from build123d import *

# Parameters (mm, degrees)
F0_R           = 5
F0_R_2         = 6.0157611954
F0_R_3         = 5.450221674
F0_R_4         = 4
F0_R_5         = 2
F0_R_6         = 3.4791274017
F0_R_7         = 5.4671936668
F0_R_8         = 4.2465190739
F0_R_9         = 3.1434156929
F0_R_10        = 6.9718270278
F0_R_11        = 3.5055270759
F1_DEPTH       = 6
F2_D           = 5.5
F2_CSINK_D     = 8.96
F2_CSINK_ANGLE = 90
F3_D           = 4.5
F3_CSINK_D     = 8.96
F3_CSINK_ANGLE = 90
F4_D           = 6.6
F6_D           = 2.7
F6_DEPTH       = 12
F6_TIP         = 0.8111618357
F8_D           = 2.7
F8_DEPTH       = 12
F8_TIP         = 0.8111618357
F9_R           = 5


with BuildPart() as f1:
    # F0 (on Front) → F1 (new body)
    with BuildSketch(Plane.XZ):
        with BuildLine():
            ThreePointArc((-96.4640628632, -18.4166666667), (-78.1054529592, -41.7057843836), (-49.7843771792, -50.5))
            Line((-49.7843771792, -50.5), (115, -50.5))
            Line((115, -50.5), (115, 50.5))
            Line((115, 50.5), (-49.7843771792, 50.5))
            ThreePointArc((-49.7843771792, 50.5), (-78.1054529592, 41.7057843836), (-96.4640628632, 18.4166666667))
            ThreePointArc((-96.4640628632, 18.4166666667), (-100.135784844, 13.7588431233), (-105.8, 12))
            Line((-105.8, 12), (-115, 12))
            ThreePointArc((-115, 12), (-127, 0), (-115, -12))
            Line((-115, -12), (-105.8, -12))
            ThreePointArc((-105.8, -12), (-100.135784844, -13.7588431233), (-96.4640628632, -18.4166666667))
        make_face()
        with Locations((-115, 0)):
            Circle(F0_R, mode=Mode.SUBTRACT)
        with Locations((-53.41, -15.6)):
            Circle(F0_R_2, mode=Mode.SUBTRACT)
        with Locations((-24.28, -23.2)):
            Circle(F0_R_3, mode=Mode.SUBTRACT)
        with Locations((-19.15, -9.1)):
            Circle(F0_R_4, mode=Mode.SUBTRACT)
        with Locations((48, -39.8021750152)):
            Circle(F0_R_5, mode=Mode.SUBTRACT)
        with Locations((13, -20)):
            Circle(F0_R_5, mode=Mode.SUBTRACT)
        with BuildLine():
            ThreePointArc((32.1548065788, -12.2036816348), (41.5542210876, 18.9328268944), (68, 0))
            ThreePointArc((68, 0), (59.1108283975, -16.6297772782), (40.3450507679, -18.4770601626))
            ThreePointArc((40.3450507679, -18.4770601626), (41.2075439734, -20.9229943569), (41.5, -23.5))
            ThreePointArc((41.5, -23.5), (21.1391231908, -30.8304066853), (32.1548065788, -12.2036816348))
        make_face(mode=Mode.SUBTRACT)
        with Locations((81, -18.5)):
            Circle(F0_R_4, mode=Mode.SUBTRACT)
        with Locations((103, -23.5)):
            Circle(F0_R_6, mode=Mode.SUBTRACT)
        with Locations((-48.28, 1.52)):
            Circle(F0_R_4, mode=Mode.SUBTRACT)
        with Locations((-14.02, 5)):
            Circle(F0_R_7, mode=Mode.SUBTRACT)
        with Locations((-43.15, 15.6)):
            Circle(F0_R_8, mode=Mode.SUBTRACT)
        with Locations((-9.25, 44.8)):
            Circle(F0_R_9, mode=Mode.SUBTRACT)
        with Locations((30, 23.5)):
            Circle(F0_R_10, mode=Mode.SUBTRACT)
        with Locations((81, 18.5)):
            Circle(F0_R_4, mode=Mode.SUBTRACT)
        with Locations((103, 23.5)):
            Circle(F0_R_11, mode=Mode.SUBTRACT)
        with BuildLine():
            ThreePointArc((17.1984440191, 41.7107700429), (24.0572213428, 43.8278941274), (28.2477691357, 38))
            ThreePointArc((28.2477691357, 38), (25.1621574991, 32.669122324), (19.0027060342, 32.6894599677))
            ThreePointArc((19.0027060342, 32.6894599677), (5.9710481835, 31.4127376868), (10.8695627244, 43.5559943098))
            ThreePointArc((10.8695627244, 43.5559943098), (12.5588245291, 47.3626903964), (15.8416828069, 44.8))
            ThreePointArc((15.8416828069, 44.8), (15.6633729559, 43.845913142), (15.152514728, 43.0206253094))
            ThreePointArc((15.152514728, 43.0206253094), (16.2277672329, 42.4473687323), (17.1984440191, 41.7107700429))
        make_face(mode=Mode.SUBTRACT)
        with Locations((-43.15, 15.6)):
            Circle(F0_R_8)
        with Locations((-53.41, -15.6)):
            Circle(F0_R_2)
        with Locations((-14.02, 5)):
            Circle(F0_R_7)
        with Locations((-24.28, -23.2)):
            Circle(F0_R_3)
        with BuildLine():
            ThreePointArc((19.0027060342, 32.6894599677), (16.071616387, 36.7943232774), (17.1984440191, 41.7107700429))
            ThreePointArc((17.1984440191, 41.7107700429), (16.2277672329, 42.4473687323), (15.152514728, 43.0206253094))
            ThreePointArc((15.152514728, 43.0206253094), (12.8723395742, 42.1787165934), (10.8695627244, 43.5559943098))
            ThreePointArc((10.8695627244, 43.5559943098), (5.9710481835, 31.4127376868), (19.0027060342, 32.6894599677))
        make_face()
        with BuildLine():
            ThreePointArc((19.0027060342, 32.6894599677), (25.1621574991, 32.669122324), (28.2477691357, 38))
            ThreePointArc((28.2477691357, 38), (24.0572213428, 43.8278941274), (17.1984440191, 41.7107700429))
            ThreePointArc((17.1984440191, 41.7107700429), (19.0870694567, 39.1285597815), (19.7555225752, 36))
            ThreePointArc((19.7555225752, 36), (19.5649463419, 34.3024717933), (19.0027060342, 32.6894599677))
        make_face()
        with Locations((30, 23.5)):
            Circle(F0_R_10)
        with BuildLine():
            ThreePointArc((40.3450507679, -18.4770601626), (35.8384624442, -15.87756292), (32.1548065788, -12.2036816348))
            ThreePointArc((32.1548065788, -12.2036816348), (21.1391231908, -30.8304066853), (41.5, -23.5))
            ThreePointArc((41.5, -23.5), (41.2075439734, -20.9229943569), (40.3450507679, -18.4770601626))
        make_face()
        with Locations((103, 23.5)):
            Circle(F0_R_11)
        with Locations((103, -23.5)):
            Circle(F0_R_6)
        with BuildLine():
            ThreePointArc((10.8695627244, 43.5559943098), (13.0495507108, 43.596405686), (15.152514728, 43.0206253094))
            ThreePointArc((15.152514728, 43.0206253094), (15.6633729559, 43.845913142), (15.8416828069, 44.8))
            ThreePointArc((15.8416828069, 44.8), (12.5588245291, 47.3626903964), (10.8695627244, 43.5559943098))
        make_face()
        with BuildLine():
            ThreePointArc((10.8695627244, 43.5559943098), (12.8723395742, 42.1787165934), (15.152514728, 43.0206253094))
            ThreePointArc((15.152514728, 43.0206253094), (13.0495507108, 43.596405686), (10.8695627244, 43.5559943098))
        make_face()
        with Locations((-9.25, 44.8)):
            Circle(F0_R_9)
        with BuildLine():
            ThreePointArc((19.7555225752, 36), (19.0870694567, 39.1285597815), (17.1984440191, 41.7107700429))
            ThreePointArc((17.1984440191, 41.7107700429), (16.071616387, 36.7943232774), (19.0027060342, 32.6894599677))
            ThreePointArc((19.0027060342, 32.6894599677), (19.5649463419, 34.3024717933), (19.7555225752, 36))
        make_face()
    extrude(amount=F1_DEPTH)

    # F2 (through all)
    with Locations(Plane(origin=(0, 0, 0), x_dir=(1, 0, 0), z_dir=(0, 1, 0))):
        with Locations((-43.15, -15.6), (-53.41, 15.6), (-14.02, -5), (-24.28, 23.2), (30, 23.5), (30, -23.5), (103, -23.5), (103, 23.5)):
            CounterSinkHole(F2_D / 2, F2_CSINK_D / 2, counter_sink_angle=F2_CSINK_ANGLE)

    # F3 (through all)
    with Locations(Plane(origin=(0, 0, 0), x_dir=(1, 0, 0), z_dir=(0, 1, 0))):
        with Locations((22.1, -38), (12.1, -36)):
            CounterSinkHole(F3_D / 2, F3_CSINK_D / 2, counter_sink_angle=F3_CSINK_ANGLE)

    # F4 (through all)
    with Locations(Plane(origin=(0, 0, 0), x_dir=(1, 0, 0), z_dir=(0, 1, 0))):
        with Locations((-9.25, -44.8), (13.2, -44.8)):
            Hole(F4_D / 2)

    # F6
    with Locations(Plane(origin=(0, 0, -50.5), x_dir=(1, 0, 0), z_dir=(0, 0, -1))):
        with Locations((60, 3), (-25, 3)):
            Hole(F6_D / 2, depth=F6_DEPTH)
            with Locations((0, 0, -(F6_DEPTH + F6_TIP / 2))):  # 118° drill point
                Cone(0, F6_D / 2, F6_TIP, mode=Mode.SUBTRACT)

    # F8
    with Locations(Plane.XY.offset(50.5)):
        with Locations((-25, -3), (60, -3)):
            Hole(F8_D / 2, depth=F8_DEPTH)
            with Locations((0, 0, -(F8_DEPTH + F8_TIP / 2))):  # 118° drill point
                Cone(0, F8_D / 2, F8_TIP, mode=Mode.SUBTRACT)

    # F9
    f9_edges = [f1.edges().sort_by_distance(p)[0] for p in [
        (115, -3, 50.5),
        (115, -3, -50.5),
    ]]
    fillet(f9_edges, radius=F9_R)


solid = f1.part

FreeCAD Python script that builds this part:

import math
import FreeCAD as App
import Part
import Sketcher

V = App.Vector
Q = App.Units.Quantity


def edges_at(feature, points):
    """Names of the edges that pass closest to the given points."""
    edges = feature.Shape.Edges
    near = lambda p: min(range(len(edges)), key=lambda i: edges[i].distToShape(Part.Vertex(*p))[0])
    return sorted({f"Edge{near(p) + 1}" for p in points})

doc = App.newDocument("Part")
params = doc.addObject("Spreadsheet::Sheet", "Params")
for row, (alias, value) in enumerate([
    ("sketch1_diameter", "10 mm"),
    ("sketch1_diameter2", "8 mm"),
    ("sketch1_diameter3", "4 mm"),
    ("sketch1_radius", "50 mm"),
    ("sketch1_radius2", "10 mm"),
    ("pad1_length", "6 mm"),
    ("sketch2_diameter", "5.5 mm"),
    ("hole_diameter", "5.5 mm"),
    ("hole_csink_diameter", "8.96 mm"),
    ("sketch3_diameter", "4.5 mm"),
    ("hole2_diameter", "4.5 mm"),
    ("hole2_csink_diameter", "8.96 mm"),
    ("sketch4_diameter", "6.6 mm"),
    ("hole3_diameter", "6.6 mm"),
    ("sketch5_diameter", "2.7 mm"),
    ("hole4_diameter", "2.7 mm"),
    ("hole4_depth", "12 mm"),
    ("sketch6_diameter", "2.7 mm"),
    ("hole5_diameter", "2.7 mm"),
    ("hole5_depth", "12 mm"),
    ("fillet_radius", "5 mm"),
], start=1):
    params.set(f"A{row}", alias)
    params.set(f"B{row}", "=" + value)
    params.setAlias(f"B{row}", alias)

body = doc.addObject("PartDesign::Body", "Body")

# Sketch on XZ plane
sketch1 = doc.addObject("Sketcher::SketchObject", "Sketch")
body.addObject(sketch1)
sketch1.AttachmentSupport = (doc.XZ_Plane, [""])
sketch1.MapMode = "FlatFace"
sketch1.addGeometry([
    Part.ArcOfCircle(Part.Circle(V(-49.8, -0.5, 0), V(0, 0, 1), 50), math.radians(-159), math.radians(-90)),  # 0
    Part.LineSegment(V(-49.8, -50.5, 0), V(115, -50.5, 0)),  # 1
    Part.LineSegment(V(115, -50.5, 0), V(115, 50.5, 0)),  # 2
    Part.LineSegment(V(115, 50.5, 0), V(-49.8, 50.5, 0)),  # 3
    Part.ArcOfCircle(Part.Circle(V(-49.8, 0.5, 0), V(0, 0, 1), 50), math.radians(90), math.radians(159)),  # 4
    Part.ArcOfCircle(Part.Circle(V(-105.8, 22, 0), V(0, 0, 1), 10), math.radians(-90), math.radians(-21)),  # 5
    Part.LineSegment(V(-105.8, 12, 0), V(-115, 12, 0)),  # 6
    Part.ArcOfCircle(Part.Circle(V(-115, 0, 0), V(0, 0, 1), 12), math.radians(90), math.radians(270)),  # 7
    Part.LineSegment(V(-115, -12, 0), V(-105.8, -12, 0)),  # 8
    Part.ArcOfCircle(Part.Circle(V(-105.8, -22, 0), V(0, 0, 1), 10), math.radians(21), math.radians(90)),  # 9
    Part.Circle(V(-115, 0, 0), V(0, 0, 1), 5),  # 10
    Part.Circle(V(-19.1, -9.1, 0), V(0, 0, 1), 4),  # 11
    Part.Circle(V(-48.3, 1.5, 0), V(0, 0, 1), 4),  # 12
    Part.Circle(V(48, -39.8, 0), V(0, 0, 1), 2),  # 13
    Part.Circle(V(13, -20, 0), V(0, 0, 1), 2),  # 14
    Part.ArcOfCircle(Part.Circle(V(48, 0, 0), V(0, 0, 1), 20), math.radians(0), math.radians(218)),  # 15
    Part.ArcOfCircle(Part.Circle(V(48, 0, 0), V(0, 0, 1), 20), math.radians(-113), math.radians(0)),  # 16
    Part.ArcOfCircle(Part.Circle(V(48, 0, 0), V(0, 0, 1), 20), math.radians(-142), math.radians(-113)),  # 17
    Part.Circle(V(81, -18.5, 0), V(0, 0, 1), 4),  # 18
    Part.Circle(V(81, 18.5, 0), V(0, 0, 1), 4),  # 19
], False)
sketch1.addConstraint([
    Sketcher.Constraint("Tangent", 0, 2, 1, 1),
    Sketcher.Constraint("Coincident", 1, 2, 2, 1),
    Sketcher.Constraint("Coincident", 2, 2, 3, 1),
    Sketcher.Constraint("Tangent", 3, 2, 4, 1),
    Sketcher.Constraint("Tangent", 4, 2, 5, 2),
    Sketcher.Constraint("Tangent", 5, 1, 6, 1),
    Sketcher.Constraint("Tangent", 6, 2, 7, 1),
    Sketcher.Constraint("Tangent", 7, 2, 8, 1),
    Sketcher.Constraint("Tangent", 8, 2, 9, 2),
    Sketcher.Constraint("Tangent", 9, 1, 0, 1),
    Sketcher.Constraint("Tangent", 15, 1, 16, 2),
    Sketcher.Constraint("Tangent", 16, 1, 17, 2),
    Sketcher.Constraint("Tangent", 17, 1, 15, 2),
    Sketcher.Constraint("Horizontal", 1),
    Sketcher.Constraint("Vertical", 2),
    Sketcher.Constraint("Horizontal", 3),
    Sketcher.Constraint("Horizontal", 6),
    Sketcher.Constraint("Horizontal", 8),
    Sketcher.Constraint("Coincident", 10, 3, 7, 3),
    Sketcher.Constraint("Equal", 0, 4),
    Sketcher.Constraint("Equal", 5, 9),
    Sketcher.Constraint("Equal", 11, 12),
    Sketcher.Constraint("Equal", 13, 14),
    Sketcher.Constraint("Equal", 12, 18),
    Sketcher.Constraint("Equal", 18, 19),
    Sketcher.Constraint("Symmetric", 0, 3, 4, 3, -1),
    Sketcher.Constraint("Symmetric", 18, 3, 19, 3, -1),
    Sketcher.Constraint("PointOnObject", 7, 3, -1),
    Sketcher.Constraint("PointOnObject", 15, 3, -1),
    Sketcher.Constraint("PointOnObject", 15, 1, -1),
    Sketcher.Constraint("Vertical", 13, 3, 15, 3),
    Sketcher.Constraint("Diameter", 10, Q("10 mm")),
    Sketcher.Constraint("Diameter", 11, Q("8 mm")),
    Sketcher.Constraint("Diameter", 13, Q("4 mm")),
    Sketcher.Constraint("Radius", 0, Q("50 mm")),
    Sketcher.Constraint("Radius", 5, Q("10 mm")),
    Sketcher.Constraint("Radius", 7, Q("12 mm")),
    Sketcher.Constraint("Radius", 15, Q("20 mm")),
    Sketcher.Constraint("DistanceY", 2, 1, 2, 2, Q("101 mm")),
    Sketcher.Constraint("DistanceX", 6, 2, 6, 1, Q("9.2 mm")),
    Sketcher.Constraint("DistanceX", 7, 3, -1, 1, Q("115 mm")),
    Sketcher.Constraint("DistanceX", -1, 1, 13, 3, Q("48 mm")),
    Sketcher.Constraint("DistanceX", -1, 1, 14, 3, Q("13 mm")),
    Sketcher.Constraint("DistanceY", 14, 3, -1, 1, Q("20 mm")),
    Sketcher.Constraint("DistanceX", -1, 1, 18, 3, Q("81 mm")),
    Sketcher.Constraint("DistanceX", -1, 1, 1, 2, Q("115 mm")),
    Sketcher.Constraint("DistanceY", 18, 3, 19, 3, Q("37 mm")),
    Sketcher.Constraint("DistanceY", 11, 3, -1, 1, Q("9.1 mm")),
    Sketcher.Constraint("DistanceX", 11, 3, -1, 1, Q("19.15 mm")),
    Sketcher.Constraint("DistanceX", 12, 3, -1, 1, Q("48.28 mm")),
    Sketcher.Constraint("DistanceY", -1, 1, 12, 3, Q("1.52 mm")),
    Sketcher.Constraint("DistanceX", -1, 1, 16, 1, Q("40.345051 mm")),
    Sketcher.Constraint("DistanceY", 17, 1, -1, 1, Q("12.203682 mm")),
    Sketcher.Constraint("DistanceY", 13, 3, -1, 1, Q("39.802175 mm")),
])
sketch1.setExpression("Constraints[31]", "Params.sketch1_diameter")
sketch1.setExpression("Constraints[32]", "Params.sketch1_diameter2")
sketch1.setExpression("Constraints[33]", "Params.sketch1_diameter3")
sketch1.setExpression("Constraints[34]", "Params.sketch1_radius")
sketch1.setExpression("Constraints[35]", "Params.sketch1_radius2")
pad1 = doc.addObject("PartDesign::Pad", "Pad")
body.addObject(pad1)
pad1.Profile = sketch1
pad1.setExpression("Length", "Params.pad1_length")

# Sketch on XZ plane
sketch2 = doc.addObject("Sketcher::SketchObject", "Sketch001")
body.addObject(sketch2)
sketch2.AttachmentSupport = (doc.XZ_Plane, [""])
sketch2.MapMode = "FlatFace"
sketch2.addGeometry([
    Part.Circle(V(-43.1, 15.6, 0), V(0, 0, 1), 2.8),  # 0
    Part.Circle(V(-53.4, -15.6, 0), V(0, 0, 1), 2.8),  # 1
    Part.Circle(V(-14, 5, 0), V(0, 0, 1), 2.8),  # 2
    Part.Circle(V(-24.3, -23.2, 0), V(0, 0, 1), 2.8),  # 3
    Part.Circle(V(30, -23.5, 0), V(0, 0, 1), 2.8),  # 4
    Part.Circle(V(30, 23.5, 0), V(0, 0, 1), 2.8),  # 5
    Part.Circle(V(103, 23.5, 0), V(0, 0, 1), 2.8),  # 6
    Part.Circle(V(103, -23.5, 0), V(0, 0, 1), 2.8),  # 7
], False)
sketch2.addConstraint([
    Sketcher.Constraint("Equal", 0, 1),
    Sketcher.Constraint("Equal", 1, 2),
    Sketcher.Constraint("Equal", 2, 3),
    Sketcher.Constraint("Equal", 3, 4),
    Sketcher.Constraint("Equal", 4, 5),
    Sketcher.Constraint("Equal", 5, 6),
    Sketcher.Constraint("Equal", 6, 7),
    Sketcher.Constraint("Symmetric", 4, 3, 5, 3, -1),
    Sketcher.Constraint("Symmetric", 6, 3, 7, 3, -1),
    Sketcher.Constraint("Horizontal", 5, 3, 6, 3),
    Sketcher.Constraint("Diameter", 0, Q("5.5 mm")),
    Sketcher.Constraint("DistanceY", -1, 1, 2, 3, Q("5 mm")),
    Sketcher.Constraint("DistanceX", -1, 1, 4, 3, Q("30 mm")),
    Sketcher.Constraint("DistanceX", -1, 1, 6, 3, Q("103 mm")),
    Sketcher.Constraint("DistanceY", 4, 3, 5, 3, Q("47 mm")),
    Sketcher.Constraint("DistanceY", -1, 1, 0, 3, Q("15.6 mm")),
    Sketcher.Constraint("DistanceY", 1, 3, -1, 1, Q("15.6 mm")),
    Sketcher.Constraint("DistanceY", 3, 3, -1, 1, Q("23.2 mm")),
    Sketcher.Constraint("DistanceX", 0, 3, -1, 1, Q("43.15 mm")),
    Sketcher.Constraint("DistanceX", 1, 3, -1, 1, Q("53.41 mm")),
    Sketcher.Constraint("DistanceX", 2, 3, -1, 1, Q("14.02 mm")),
    Sketcher.Constraint("DistanceX", 3, 3, -1, 1, Q("24.28 mm")),
])
sketch2.setExpression("Constraints[10]", "Params.sketch2_diameter")
doc.recompute()
hole = doc.addObject("PartDesign::Hole", "Hole")
body.addObject(hole)
hole.Profile = sketch2
hole.ThreadType = "None"
hole.setExpression("Diameter", "Params.hole_diameter")
hole.DepthType = "ThroughAll"
hole.HoleCutType = "Countersink"
hole.setExpression("HoleCutDiameter", "Params.hole_csink_diameter")
hole.HoleCutCountersinkAngle = 90
hole.Reversed = True

# Sketch on XZ plane
sketch3 = doc.addObject("Sketcher::SketchObject", "Sketch002")
body.addObject(sketch3)
sketch3.AttachmentSupport = (doc.XZ_Plane, [""])
sketch3.MapMode = "FlatFace"
sketch3.addGeometry([
    Part.Circle(V(22.1, 38, 0), V(0, 0, 1), 2.2),
    Part.Circle(V(12.1, 36, 0), V(0, 0, 1), 2.2),
], False)
sketch3.addConstraint([
    Sketcher.Constraint("Equal", 0, 1),
    Sketcher.Constraint("Diameter", 0, Q("4.5 mm")),
    Sketcher.Constraint("DistanceY", -1, 1, 0, 3, Q("38 mm")),
    Sketcher.Constraint("DistanceY", -1, 1, 1, 3, Q("36 mm")),
    Sketcher.Constraint("DistanceX", 1, 3, 0, 3, Q("10 mm")),
    Sketcher.Constraint("DistanceX", -1, 1, 0, 3, Q("22.1 mm")),
])
sketch3.setExpression("Constraints[1]", "Params.sketch3_diameter")
doc.recompute()
hole2 = doc.addObject("PartDesign::Hole", "Hole001")
body.addObject(hole2)
hole2.Profile = sketch3
hole2.ThreadType = "None"
hole2.setExpression("Diameter", "Params.hole2_diameter")
hole2.DepthType = "ThroughAll"
hole2.HoleCutType = "Countersink"
hole2.setExpression("HoleCutDiameter", "Params.hole2_csink_diameter")
hole2.HoleCutCountersinkAngle = 90
hole2.Reversed = True

# Sketch on XZ plane
sketch4 = doc.addObject("Sketcher::SketchObject", "Sketch003")
body.addObject(sketch4)
sketch4.AttachmentSupport = (doc.XZ_Plane, [""])
sketch4.MapMode = "FlatFace"
sketch4.addGeometry([
    Part.Circle(V(-9.2, 44.8, 0), V(0, 0, 1), 3.3),
    Part.Circle(V(13.2, 44.8, 0), V(0, 0, 1), 3.3),
], False)
sketch4.addConstraint([
    Sketcher.Constraint("Equal", 0, 1),
    Sketcher.Constraint("Horizontal", 0, 3, 1, 3),
    Sketcher.Constraint("Diameter", 0, Q("6.6 mm")),
    Sketcher.Constraint("DistanceY", -1, 1, 0, 3, Q("44.8 mm")),
    Sketcher.Constraint("DistanceX", -1, 1, 1, 3, Q("13.2 mm")),
    Sketcher.Constraint("DistanceX", 0, 3, -1, 1, Q("9.25 mm")),
])
sketch4.setExpression("Constraints[2]", "Params.sketch4_diameter")
doc.recompute()
hole3 = doc.addObject("PartDesign::Hole", "Hole002")
body.addObject(hole3)
hole3.Profile = sketch4
hole3.ThreadType = "None"
hole3.setExpression("Diameter", "Params.hole3_diameter")
hole3.DepthType = "ThroughAll"
hole3.Reversed = True

# Sketch on XY plane
sketch5 = doc.addObject("Sketcher::SketchObject", "Sketch004")
body.addObject(sketch5)
sketch5.AttachmentSupport = (doc.XY_Plane, [""])
sketch5.MapMode = "FlatFace"
sketch5.AttachmentOffset = App.Placement(V(0, 0, -50.5), App.Rotation())
sketch5.addGeometry([
    Part.Circle(V(60, -3, 0), V(0, 0, 1), 1.4),
    Part.Circle(V(-25, -3, 0), V(0, 0, 1), 1.4),
], False)
sketch5.addConstraint([
    Sketcher.Constraint("Equal", 0, 1),
    Sketcher.Constraint("Horizontal", 0, 3, 1, 3),
    Sketcher.Constraint("Diameter", 0, Q("2.7 mm")),
    Sketcher.Constraint("DistanceX", -1, 1, 0, 3, Q("60 mm")),
    Sketcher.Constraint("DistanceY", 0, 3, -1, 1, Q("3 mm")),
    Sketcher.Constraint("DistanceX", 1, 3, -1, 1, Q("25 mm")),
])
sketch5.setExpression("Constraints[2]", "Params.sketch5_diameter")
doc.recompute()
hole4 = doc.addObject("PartDesign::Hole", "Hole003")
body.addObject(hole4)
hole4.Profile = sketch5
hole4.ThreadType = "None"
hole4.setExpression("Diameter", "Params.hole4_diameter")
hole4.DepthType = "Dimension"
hole4.setExpression("Depth", "Params.hole4_depth")
hole4.DrillPoint = "Angled"
hole4.DrillPointAngle = 118
hole4.Reversed = True

# Sketch on XY plane
sketch6 = doc.addObject("Sketcher::SketchObject", "Sketch005")
body.addObject(sketch6)
sketch6.AttachmentSupport = (doc.XY_Plane, [""])
sketch6.MapMode = "FlatFace"
sketch6.AttachmentOffset = App.Placement(V(0, 0, 50.5), App.Rotation())
sketch6.addGeometry([
    Part.Circle(V(-25, -3, 0), V(0, 0, 1), 1.4),
    Part.Circle(V(60, -3, 0), V(0, 0, 1), 1.4),
], False)
sketch6.addConstraint([
    Sketcher.Constraint("Equal", 0, 1),
    Sketcher.Constraint("Horizontal", 0, 3, 1, 3),
    Sketcher.Constraint("Diameter", 0, Q("2.7 mm")),
    Sketcher.Constraint("DistanceX", 0, 3, -1, 1, Q("25 mm")),
    Sketcher.Constraint("DistanceY", 0, 3, -1, 1, Q("3 mm")),
    Sketcher.Constraint("DistanceX", -1, 1, 1, 3, Q("60 mm")),
])
sketch6.setExpression("Constraints[2]", "Params.sketch6_diameter")
doc.recompute()
hole5 = doc.addObject("PartDesign::Hole", "Hole004")
body.addObject(hole5)
hole5.Profile = sketch6
hole5.ThreadType = "None"
hole5.setExpression("Diameter", "Params.hole5_diameter")
hole5.DepthType = "Dimension"
hole5.setExpression("Depth", "Params.hole5_depth")
hole5.DrillPoint = "Angled"
hole5.DrillPointAngle = 118
doc.recompute()

fillet = doc.addObject("PartDesign::Fillet", "Fillet")
body.addObject(fillet)
fillet.Base = (hole5, edges_at(hole5, [(115, -3, 50.5), (115, -3, -50.5)]))
fillet.setExpression("Radius", "Params.fillet_radius")

doc.recompute()
